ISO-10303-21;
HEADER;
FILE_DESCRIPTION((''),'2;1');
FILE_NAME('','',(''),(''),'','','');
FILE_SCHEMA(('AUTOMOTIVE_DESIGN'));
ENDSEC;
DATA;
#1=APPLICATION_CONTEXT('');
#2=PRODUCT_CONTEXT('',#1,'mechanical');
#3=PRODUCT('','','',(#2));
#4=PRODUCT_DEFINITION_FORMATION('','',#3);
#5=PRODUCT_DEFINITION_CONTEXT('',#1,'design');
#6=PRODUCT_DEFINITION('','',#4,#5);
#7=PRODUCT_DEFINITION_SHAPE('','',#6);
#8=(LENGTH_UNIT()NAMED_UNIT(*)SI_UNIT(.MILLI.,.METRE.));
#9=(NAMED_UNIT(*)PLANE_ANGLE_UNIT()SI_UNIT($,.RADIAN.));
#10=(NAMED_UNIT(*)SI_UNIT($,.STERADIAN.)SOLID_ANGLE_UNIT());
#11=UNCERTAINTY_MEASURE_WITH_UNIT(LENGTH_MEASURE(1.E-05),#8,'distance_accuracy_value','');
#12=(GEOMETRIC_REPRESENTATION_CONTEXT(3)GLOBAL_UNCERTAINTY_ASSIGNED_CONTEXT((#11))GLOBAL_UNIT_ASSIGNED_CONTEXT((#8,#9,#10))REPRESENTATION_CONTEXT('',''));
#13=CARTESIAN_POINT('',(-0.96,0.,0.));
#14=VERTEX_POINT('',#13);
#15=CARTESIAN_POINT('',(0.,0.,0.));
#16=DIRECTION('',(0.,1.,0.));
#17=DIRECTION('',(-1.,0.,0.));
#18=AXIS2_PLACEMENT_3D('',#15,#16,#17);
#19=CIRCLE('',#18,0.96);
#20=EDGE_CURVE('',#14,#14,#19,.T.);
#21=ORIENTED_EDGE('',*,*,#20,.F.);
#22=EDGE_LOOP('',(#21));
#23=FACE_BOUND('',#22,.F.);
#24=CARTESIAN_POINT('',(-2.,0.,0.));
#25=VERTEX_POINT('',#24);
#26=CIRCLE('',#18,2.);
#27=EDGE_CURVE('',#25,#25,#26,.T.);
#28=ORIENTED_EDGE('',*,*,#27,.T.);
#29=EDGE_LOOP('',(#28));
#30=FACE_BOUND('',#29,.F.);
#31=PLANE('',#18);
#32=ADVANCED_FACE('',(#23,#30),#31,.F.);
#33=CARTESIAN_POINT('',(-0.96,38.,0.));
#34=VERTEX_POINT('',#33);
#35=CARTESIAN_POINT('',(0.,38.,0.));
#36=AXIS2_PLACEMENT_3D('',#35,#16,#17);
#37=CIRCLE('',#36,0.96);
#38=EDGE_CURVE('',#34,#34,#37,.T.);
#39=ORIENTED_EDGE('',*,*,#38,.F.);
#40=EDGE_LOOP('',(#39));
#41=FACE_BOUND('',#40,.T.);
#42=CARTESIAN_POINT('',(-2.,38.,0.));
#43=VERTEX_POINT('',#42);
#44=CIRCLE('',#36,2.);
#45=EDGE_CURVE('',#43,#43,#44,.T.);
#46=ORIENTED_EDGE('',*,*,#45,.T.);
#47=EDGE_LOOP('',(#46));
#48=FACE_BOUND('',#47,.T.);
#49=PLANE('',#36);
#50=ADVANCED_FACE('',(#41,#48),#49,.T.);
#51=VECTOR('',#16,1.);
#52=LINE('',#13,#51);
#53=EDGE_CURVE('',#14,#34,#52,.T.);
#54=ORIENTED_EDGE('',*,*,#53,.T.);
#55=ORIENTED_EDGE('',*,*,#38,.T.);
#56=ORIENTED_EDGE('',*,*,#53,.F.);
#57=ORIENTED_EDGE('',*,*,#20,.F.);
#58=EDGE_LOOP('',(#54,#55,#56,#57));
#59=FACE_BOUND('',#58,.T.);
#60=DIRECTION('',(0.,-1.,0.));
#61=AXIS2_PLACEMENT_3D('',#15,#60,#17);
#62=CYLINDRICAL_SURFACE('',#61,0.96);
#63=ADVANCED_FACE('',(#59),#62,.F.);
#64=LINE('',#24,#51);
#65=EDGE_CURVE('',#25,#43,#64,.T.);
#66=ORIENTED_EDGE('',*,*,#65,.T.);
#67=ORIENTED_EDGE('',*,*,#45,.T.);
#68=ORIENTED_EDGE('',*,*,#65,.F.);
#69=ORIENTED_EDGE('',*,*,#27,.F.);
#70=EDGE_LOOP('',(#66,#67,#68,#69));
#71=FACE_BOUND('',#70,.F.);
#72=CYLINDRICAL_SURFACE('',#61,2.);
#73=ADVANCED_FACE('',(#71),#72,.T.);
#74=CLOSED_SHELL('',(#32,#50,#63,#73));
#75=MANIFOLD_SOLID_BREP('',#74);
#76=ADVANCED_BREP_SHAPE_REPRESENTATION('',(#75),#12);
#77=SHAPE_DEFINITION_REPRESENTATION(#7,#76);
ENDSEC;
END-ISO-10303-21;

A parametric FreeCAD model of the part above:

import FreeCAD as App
import Part
import Sketcher

doc = App.newDocument("Part")
body = doc.addObject("PartDesign::Body", "Body")

# Sketch on XZ plane
sketch1 = doc.addObject("Sketcher::SketchObject", "Sketch")
body.addObject(sketch1)
sketch1.AttachmentSupport = (doc.XZ_Plane, [""])
sketch1.MapMode = "FlatFace"
sketch1.addGeometry(Part.Circle(App.Vector(0, 0, 0), App.Vector(0, 0, 1), 2), False)
sketch1.addGeometry(Part.Circle(App.Vector(0, 0, 0), App.Vector(0, 0, 1), 1), False)
sketch1.addConstraint(Sketcher.Constraint("Coincident", 0, 3, -1, 1))
sketch1.addConstraint(Sketcher.Constraint("Coincident", 1, 3, -1, 1))
sketch1.addConstraint(Sketcher.Constraint("Diameter", 0, 4.0))
sketch1.addConstraint(Sketcher.Constraint("Diameter", 1, 1.92))
pad1 = doc.addObject("PartDesign::Pad", "Pad")
body.addObject(pad1)
pad1.Profile = sketch1
pad1.Length = 38
pad1.Reversed = True

doc.recompute()
